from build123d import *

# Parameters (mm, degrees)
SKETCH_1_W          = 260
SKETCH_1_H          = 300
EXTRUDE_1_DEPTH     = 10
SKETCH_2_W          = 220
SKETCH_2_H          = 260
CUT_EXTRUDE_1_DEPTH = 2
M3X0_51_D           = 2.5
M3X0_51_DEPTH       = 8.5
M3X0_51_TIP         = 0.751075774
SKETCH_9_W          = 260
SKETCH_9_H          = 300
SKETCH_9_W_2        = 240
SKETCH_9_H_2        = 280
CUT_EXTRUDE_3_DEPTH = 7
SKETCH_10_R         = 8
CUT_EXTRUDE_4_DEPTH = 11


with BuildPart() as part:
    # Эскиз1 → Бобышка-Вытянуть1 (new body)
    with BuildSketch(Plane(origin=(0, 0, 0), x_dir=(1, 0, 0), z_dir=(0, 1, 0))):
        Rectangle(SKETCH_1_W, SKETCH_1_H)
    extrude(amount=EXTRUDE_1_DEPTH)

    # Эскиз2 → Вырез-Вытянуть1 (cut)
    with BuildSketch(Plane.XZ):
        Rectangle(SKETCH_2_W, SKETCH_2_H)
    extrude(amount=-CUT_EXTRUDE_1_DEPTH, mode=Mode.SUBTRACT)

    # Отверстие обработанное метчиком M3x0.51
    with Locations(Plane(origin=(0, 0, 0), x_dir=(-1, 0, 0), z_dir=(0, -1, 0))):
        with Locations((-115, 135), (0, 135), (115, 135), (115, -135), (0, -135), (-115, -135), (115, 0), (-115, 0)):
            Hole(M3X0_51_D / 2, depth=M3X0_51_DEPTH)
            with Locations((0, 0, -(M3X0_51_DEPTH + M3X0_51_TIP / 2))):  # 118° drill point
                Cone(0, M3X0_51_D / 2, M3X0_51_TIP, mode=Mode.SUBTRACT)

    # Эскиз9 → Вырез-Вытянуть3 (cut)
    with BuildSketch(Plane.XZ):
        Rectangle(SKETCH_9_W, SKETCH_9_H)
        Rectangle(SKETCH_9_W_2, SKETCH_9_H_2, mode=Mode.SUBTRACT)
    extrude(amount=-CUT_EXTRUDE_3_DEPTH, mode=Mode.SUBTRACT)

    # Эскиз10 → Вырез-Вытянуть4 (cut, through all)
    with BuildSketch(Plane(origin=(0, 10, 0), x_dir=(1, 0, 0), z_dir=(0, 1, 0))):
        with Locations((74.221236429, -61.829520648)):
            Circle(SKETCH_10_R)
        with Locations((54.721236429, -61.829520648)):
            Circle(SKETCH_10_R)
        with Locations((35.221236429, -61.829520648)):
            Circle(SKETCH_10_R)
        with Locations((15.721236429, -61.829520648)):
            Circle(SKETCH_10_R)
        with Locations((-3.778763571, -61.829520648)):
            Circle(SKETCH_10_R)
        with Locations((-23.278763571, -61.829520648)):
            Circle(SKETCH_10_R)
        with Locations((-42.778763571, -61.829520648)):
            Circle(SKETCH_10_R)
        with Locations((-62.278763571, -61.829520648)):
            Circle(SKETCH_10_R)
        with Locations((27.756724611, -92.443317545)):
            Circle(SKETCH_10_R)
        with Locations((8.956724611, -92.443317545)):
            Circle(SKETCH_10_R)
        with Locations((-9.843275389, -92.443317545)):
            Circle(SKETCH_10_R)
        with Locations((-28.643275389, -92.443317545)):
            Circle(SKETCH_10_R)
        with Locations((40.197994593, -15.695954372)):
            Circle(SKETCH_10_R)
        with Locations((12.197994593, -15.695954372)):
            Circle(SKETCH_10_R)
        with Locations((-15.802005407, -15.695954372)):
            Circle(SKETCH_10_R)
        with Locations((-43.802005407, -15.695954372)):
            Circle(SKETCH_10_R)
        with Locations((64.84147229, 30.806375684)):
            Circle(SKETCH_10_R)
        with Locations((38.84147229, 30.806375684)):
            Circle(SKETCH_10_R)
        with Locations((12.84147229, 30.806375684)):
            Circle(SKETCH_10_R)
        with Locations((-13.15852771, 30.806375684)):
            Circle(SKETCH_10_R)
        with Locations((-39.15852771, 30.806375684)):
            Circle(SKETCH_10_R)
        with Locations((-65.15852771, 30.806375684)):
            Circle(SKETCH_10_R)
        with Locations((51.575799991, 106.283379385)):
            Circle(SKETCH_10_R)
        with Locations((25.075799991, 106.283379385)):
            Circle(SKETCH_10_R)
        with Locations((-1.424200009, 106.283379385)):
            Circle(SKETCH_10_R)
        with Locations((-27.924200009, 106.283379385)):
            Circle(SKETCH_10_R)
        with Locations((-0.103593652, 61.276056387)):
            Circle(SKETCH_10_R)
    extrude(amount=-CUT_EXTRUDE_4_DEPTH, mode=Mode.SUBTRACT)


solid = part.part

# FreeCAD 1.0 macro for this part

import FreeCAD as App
import Part
import Sketcher
from FreeCAD import Vector


def add_polygon(sketch, points):
    """Adds a closed chain of lines whose ends are joined by coincident constraints."""
    first, n = sketch.GeometryCount, len(points)
    for a, b in zip(points, points[1:] + points[:1]):
        sketch.addGeometry(Part.LineSegment(App.Vector(*a, 0), App.Vector(*b, 0)), False)
    for i in range(n):
        sketch.addConstraint(Sketcher.Constraint("Coincident", first + i, 2, first + (i + 1) % n, 1))

doc = App.newDocument("Part")
body = doc.addObject("PartDesign::Body", "Body")

# Sketch on XZ plane
sketch1 = body.newObject("Sketcher::SketchObject", "Sketch")
sketch1.AttachmentSupport = (doc.getObject("XZ_Plane"), [""])
sketch1.MapMode = "FlatFace"
add_polygon(sketch1, [(-130, -150), (-130, 150), (130, 150), (130, -150)])  # lines 0-3
sketch1.addConstraint([
    Sketcher.Constraint("Vertical", 0),
    Sketcher.Constraint("Horizontal", 1),
    Sketcher.Constraint("Vertical", 2),
    Sketcher.Constraint("Horizontal", 3),
    Sketcher.Constraint("Symmetric", 0, 2, 2, 2, -1, 1),
    Sketcher.Constraint("DistanceX", 1, 1, 1, 2, 260.0),
    Sketcher.Constraint("DistanceY", 0, 1, 0, 2, 300.0),
])
pad1 = body.newObject("PartDesign::Pad", "Pad")
pad1.Profile = sketch1
pad1.Length = 10
pad1.Reversed = True

# Sketch on XZ plane
sketch2 = body.newObject("Sketcher::SketchObject", "Sketch001")
sketch2.AttachmentSupport = (doc.getObject("XZ_Plane"), [""])
sketch2.MapMode = "FlatFace"
add_polygon(sketch2, [(-110, 130), (-110, -130), (110, -130), (110, 130)])  # lines 0-3
sketch2.addConstraint([
    Sketcher.Constraint("Vertical", 0),
    Sketcher.Constraint("Horizontal", 1),
    Sketcher.Constraint("Vertical", 2),
    Sketcher.Constraint("Horizontal", 3),
    Sketcher.Constraint("Symmetric", 0, 2, 2, 2, -1, 1),
    Sketcher.Constraint("DistanceX", 1, 1, 1, 2, 220.0),
    Sketcher.Constraint("DistanceY", 0, 2, 0, 1, 260.0),
])
pocket1 = body.newObject("PartDesign::Pocket", "Pocket")
pocket1.Profile = sketch2
pocket1.Length = 2

# Sketch on XZ plane
sketch3 = body.newObject("Sketcher::SketchObject", "Sketch002")
sketch3.AttachmentSupport = (doc.getObject("XZ_Plane"), [""])
sketch3.MapMode = "FlatFace"
sketch3.addGeometry([
    Part.Circle(Vector(115, -135, 0), Vector(0, 0, 1), 1.25),  # 0
    Part.Circle(Vector(0, -135, 0), Vector(0, 0, 1), 1.25),  # 1
    Part.Circle(Vector(-115, -135, 0), Vector(0, 0, 1), 1.25),  # 2
    Part.Circle(Vector(-115, 135, 0), Vector(0, 0, 1), 1.25),  # 3
    Part.Circle(Vector(0, 135, 0), Vector(0, 0, 1), 1.25),  # 4
    Part.Circle(Vector(115, 135, 0), Vector(0, 0, 1), 1.25),  # 5
    Part.Circle(Vector(-115, 0, 0), Vector(0, 0, 1), 1.25),  # 6
    Part.Circle(Vector(115, 0, 0), Vector(0, 0, 1), 1.25),  # 7
], False)
sketch3.addConstraint([
    Sketcher.Constraint("Equal", 0, 1),
    Sketcher.Constraint("Equal", 1, 2),
    Sketcher.Constraint("Equal", 2, 3),
    Sketcher.Constraint("Equal", 3, 4),
    Sketcher.Constraint("Equal", 4, 5),
    Sketcher.Constraint("Equal", 5, 6),
    Sketcher.Constraint("Equal", 6, 7),
    Sketcher.Constraint("Symmetric", 0, 3, 3, 3, -1, 1),
    Sketcher.Constraint("Symmetric", 1, 3, 4, 3, -1, 1),
    Sketcher.Constraint("Symmetric", 2, 3, 5, 3, -1, 1),
    Sketcher.Constraint("Symmetric", 6, 3, 7, 3, -1, 1),
    Sketcher.Constraint("Symmetric", 0, 3, 2, 3, -2),
    Sketcher.Constraint("PointOnObject", 1, 3, -2),
    Sketcher.Constraint("PointOnObject", 6, 3, -1),
    Sketcher.Constraint("Horizontal", 0, 3, 1, 3),
    Sketcher.Constraint("Vertical", 3, 3, 6, 3),
    Sketcher.Constraint("Diameter", 0, 2.5),
    Sketcher.Constraint("DistanceX", -1, 1, 0, 3, 115.0),
    Sketcher.Constraint("DistanceY", 0, 3, -1, 1, 135.0),
])
doc.recompute()
hole = body.newObject("PartDesign::Hole", "Hole")
hole.Profile = sketch3
hole.ThreadType = "None"
hole.Diameter = 2.5
hole.DepthType = "Dimension"
hole.Depth = 8.5
hole.DrillPoint = "Angled"
hole.DrillPointAngle = 118

# Sketch on XZ plane
sketch4 = body.newObject("Sketcher::SketchObject", "Sketch003")
sketch4.AttachmentSupport = (doc.getObject("XZ_Plane"), [""])
sketch4.MapMode = "FlatFace"
add_polygon(sketch4, [(-130, 150), (-130, -150), (130, -150), (130, 150)])  # lines 0-3
add_polygon(sketch4, [(120, -140), (-120, -140), (-120, 140), (120, 140)])  # lines 4-7
sketch4.addConstraint([
    Sketcher.Constraint("Vertical", 0),
    Sketcher.Constraint("Horizontal", 1),
    Sketcher.Constraint("Vertical", 2),
    Sketcher.Constraint("Horizontal", 3),
    Sketcher.Constraint("Horizontal", 4),
    Sketcher.Constraint("Vertical", 5),
    Sketcher.Constraint("Horizontal", 6),
    Sketcher.Constraint("Vertical", 7),
    Sketcher.Constraint("Symmetric", 0, 2, 2, 2, -1, 1),
    Sketcher.Constraint("Symmetric", 4, 2, 6, 2, -1, 1),
    Sketcher.Constraint("DistanceX", 1, 1, 1, 2, 260.0),
    Sketcher.Constraint("DistanceX", 4, 2, 4, 1, 240.0),
    Sketcher.Constraint("DistanceY", 0, 2, 0, 1, 300.0),
    Sketcher.Constraint("DistanceY", 5, 1, 5, 2, 280.0),
])
pocket2 = body.newObject("PartDesign::Pocket", "Pocket001")
pocket2.Profile = sketch4
pocket2.Length = 7

# Sketch on XZ plane
sketch5 = body.newObject("Sketcher::SketchObject", "Sketch004")
sketch5.AttachmentSupport = (doc.getObject("XZ_Plane"), [""])
sketch5.MapMode = "FlatFace"
sketch5.AttachmentOffset = App.Placement(Vector(0, 0, -10), App.Rotation())
sketch5.addGeometry([
    Part.Circle(Vector(74.221236, 61.829521, 0), Vector(0, 0, 1), 8),  # 0
    Part.Circle(Vector(54.721236, 61.829521, 0), Vector(0, 0, 1), 8),  # 1
    Part.Circle(Vector(35.221236, 61.829521, 0), Vector(0, 0, 1), 8),  # 2
    Part.Circle(Vector(15.721236, 61.829521, 0), Vector(0, 0, 1), 8),  # 3
    Part.Circle(Vector(-3.778764, 61.829521, 0), Vector(0, 0, 1), 8),  # 4
    Part.Circle(Vector(-23.278764, 61.829521, 0), Vector(0, 0, 1), 8),  # 5
    Part.Circle(Vector(-42.778764, 61.829521, 0), Vector(0, 0, 1), 8),  # 6
    Part.Circle(Vector(-62.278764, 61.829521, 0), Vector(0, 0, 1), 8),  # 7
    Part.Circle(Vector(27.756725, 92.443318, 0), Vector(0, 0, 1), 8),  # 8
    Part.Circle(Vector(8.956725, 92.443318, 0), Vector(0, 0, 1), 8),  # 9
    Part.Circle(Vector(-9.843275, 92.443318, 0), Vector(0, 0, 1), 8),  # 10
    Part.Circle(Vector(-28.643275, 92.443318, 0), Vector(0, 0, 1), 8),  # 11
    Part.Circle(Vector(40.197995, 15.695954, 0), Vector(0, 0, 1), 8),  # 12
    Part.Circle(Vector(12.197995, 15.695954, 0), Vector(0, 0, 1), 8),  # 13
    Part.Circle(Vector(-15.802005, 15.695954, 0), Vector(0, 0, 1), 8),  # 14
    Part.Circle(Vector(-43.802005, 15.695954, 0), Vector(0, 0, 1), 8),  # 15
    Part.Circle(Vector(64.841472, -30.806376, 0), Vector(0, 0, 1), 8),  # 16
    Part.Circle(Vector(38.841472, -30.806376, 0), Vector(0, 0, 1), 8),  # 17
    Part.Circle(Vector(12.841472, -30.806376, 0), Vector(0, 0, 1), 8),  # 18
    Part.Circle(Vector(-13.158528, -30.806376, 0), Vector(0, 0, 1), 8),  # 19
    Part.Circle(Vector(-39.158528, -30.806376, 0), Vector(0, 0, 1), 8),  # 20
    Part.Circle(Vector(-65.158528, -30.806376, 0), Vector(0, 0, 1), 8),  # 21
    Part.Circle(Vector(51.5758, -106.283379, 0), Vector(0, 0, 1), 8),  # 22
    Part.Circle(Vector(25.0758, -106.283379, 0), Vector(0, 0, 1), 8),  # 23
    Part.Circle(Vector(-1.4242, -106.283379, 0), Vector(0, 0, 1), 8),  # 24
    Part.Circle(Vector(-27.9242, -106.283379, 0), Vector(0, 0, 1), 8),  # 25
    Part.Circle(Vector(-0.103594, -61.276056, 0), Vector(0, 0, 1), 8),  # 26
], False)
sketch5.addConstraint([
    Sketcher.Constraint("Equal", 0, 1),
    Sketcher.Constraint("Equal", 1, 2),
    Sketcher.Constraint("Equal", 2, 3),
    Sketcher.Constraint("Equal", 3, 4),
    Sketcher.Constraint("Equal", 4, 5),
    Sketcher.Constraint("Equal", 5, 6),
    Sketcher.Constraint("Equal", 6, 7),
    Sketcher.Constraint("Equal", 7, 8),
    Sketcher.Constraint("Equal", 8, 9),
    Sketcher.Constraint("Equal", 9, 10),
    Sketcher.Constraint("Equal", 10, 11),
    Sketcher.Constraint("Equal", 11, 12),
    Sketcher.Constraint("Equal", 12, 13),
    Sketcher.Constraint("Equal", 13, 14),
    Sketcher.Constraint("Equal", 14, 15),
    Sketcher.Constraint("Equal", 15, 16),
    Sketcher.Constraint("Equal", 16, 17),
    Sketcher.Constraint("Equal", 17, 18),
    Sketcher.Constraint("Equal", 18, 19),
    Sketcher.Constraint("Equal", 19, 20),
    Sketcher.Constraint("Equal", 20, 21),
    Sketcher.Constraint("Equal", 21, 22),
    Sketcher.Constraint("Equal", 22, 23),
    Sketcher.Constraint("Equal", 23, 24),
    Sketcher.Constraint("Equal", 24, 25),
    Sketcher.Constraint("Equal", 25, 26),
    Sketcher.Constraint("Horizontal", 0, 3, 1, 3),
    Sketcher.Constraint("Horizontal", 1, 3, 2, 3),
    Sketcher.Constraint("Horizontal", 2, 3, 3, 3),
    Sketcher.Constraint("Horizontal", 3, 3, 4, 3),
    Sketcher.Constraint("Horizontal", 4, 3, 5, 3),
    Sketcher.Constraint("Horizontal", 5, 3, 6, 3),
    Sketcher.Constraint("Horizontal", 6, 3, 7, 3),
    Sketcher.Constraint("Horizontal", 8, 3, 9, 3),
    Sketcher.Constraint("Horizontal", 9, 3, 10, 3),
    Sketcher.Constraint("Horizontal", 10, 3, 11, 3),
    Sketcher.Constraint("Horizontal", 12, 3, 13, 3),
    Sketcher.Constraint("Horizontal", 13, 3, 14, 3),
    Sketcher.Constraint("Horizontal", 14, 3, 15, 3),
    Sketcher.Constraint("Horizontal", 16, 3, 17, 3),
    Sketcher.Constraint("Horizontal", 17, 3, 18, 3),
    Sketcher.Constraint("Horizontal", 18, 3, 19, 3),
    Sketcher.Constraint("Horizontal", 19, 3, 20, 3),
    Sketcher.Constraint("Horizontal", 20, 3, 21, 3),
    Sketcher.Constraint("Horizontal", 22, 3, 23, 3),
    Sketcher.Constraint("Horizontal", 23, 3, 24, 3),
    Sketcher.Constraint("Horizontal", 24, 3, 25, 3),
    Sketcher.Constraint("Diameter", 0, 16.0),
    Sketcher.Constraint("DistanceX", 2, 3, 0, 3, 39.0),
    Sketcher.Constraint("DistanceX", 3, 3, 1, 3, 39.0),
    Sketcher.Constraint("DistanceX", 4, 3, 2, 3, 39.0),
    Sketcher.Constraint("DistanceX", 5, 3, 3, 3, 39.0),
    Sketcher.Constraint("DistanceX", 6, 3, 4, 3, 39.0),
    Sketcher.Constraint("DistanceX", 7, 3, 5, 3, 39.0),
    Sketcher.Constraint("DistanceX", 13, 3, 12, 3, 28.0),
    Sketcher.Constraint("DistanceX", 14, 3, 13, 3, 28.0),
    Sketcher.Constraint("DistanceX", 15, 3, 14, 3, 28.0),
    Sketcher.Constraint("DistanceX", 17, 3, 16, 3, 26.0),
    Sketcher.Constraint("DistanceX", 18, 3, 17, 3, 26.0),
    Sketcher.Constraint("DistanceX", 19, 3, 18, 3, 26.0),
    Sketcher.Constraint("DistanceX", 20, 3, 19, 3, 26.0),
    Sketcher.Constraint("DistanceX", 21, 3, 20, 3, 26.0),
    Sketcher.Constraint("DistanceX", 24, 3, 22, 3, 53.0),
    Sketcher.Constraint("DistanceX", 25, 3, 23, 3, 53.0),
    Sketcher.Constraint("DistanceX", 1, 3, 0, 3, 19.5),
    Sketcher.Constraint("DistanceX", 9, 3, 8, 3, 18.8),
    Sketcher.Constraint("DistanceX", 10, 3, 9, 3, 18.8),
    Sketcher.Constraint("DistanceX", 11, 3, 10, 3, 18.8),
    Sketcher.Constraint("DistanceX", 23, 3, 22, 3, 26.5),
    Sketcher.Constraint("DistanceX", -1, 1, 22, 3, 51.5758),
    Sketcher.Constraint("DistanceY", -1, 1, 0, 3, 61.829521),
    Sketcher.Constraint("DistanceY", 22, 3, -1, 1, 106.283379),
    Sketcher.Constraint("DistanceX", 8, 3, 2, 3, 7.464512),
    Sketcher.Constraint("DistanceX", 2, 3, 12, 3, 4.976758),
    Sketcher.Constraint("DistanceY", 16, 3, 12, 3, 46.50233),
    Sketcher.Constraint("DistanceY", 26, 3, 18, 3, 30.469681),
    Sketcher.Constraint("DistanceX", -1, 1, 0, 3, 74.221236),
    Sketcher.Constraint("DistanceY", -1, 1, 8, 3, 92.443318),
    Sketcher.Constraint("DistanceY", -1, 1, 12, 3, 15.695954),
    Sketcher.Constraint("DistanceX", -1, 1, 16, 3, 64.841472),
    Sketcher.Constraint("DistanceX", 26, 3, -1, 1, 0.103594),
])
pocket3 = body.newObject("PartDesign::Pocket", "Pocket002")
pocket3.Profile = sketch5
pocket3.Type = "ThroughAll"
pocket3.Reversed = True

doc.recompute()
